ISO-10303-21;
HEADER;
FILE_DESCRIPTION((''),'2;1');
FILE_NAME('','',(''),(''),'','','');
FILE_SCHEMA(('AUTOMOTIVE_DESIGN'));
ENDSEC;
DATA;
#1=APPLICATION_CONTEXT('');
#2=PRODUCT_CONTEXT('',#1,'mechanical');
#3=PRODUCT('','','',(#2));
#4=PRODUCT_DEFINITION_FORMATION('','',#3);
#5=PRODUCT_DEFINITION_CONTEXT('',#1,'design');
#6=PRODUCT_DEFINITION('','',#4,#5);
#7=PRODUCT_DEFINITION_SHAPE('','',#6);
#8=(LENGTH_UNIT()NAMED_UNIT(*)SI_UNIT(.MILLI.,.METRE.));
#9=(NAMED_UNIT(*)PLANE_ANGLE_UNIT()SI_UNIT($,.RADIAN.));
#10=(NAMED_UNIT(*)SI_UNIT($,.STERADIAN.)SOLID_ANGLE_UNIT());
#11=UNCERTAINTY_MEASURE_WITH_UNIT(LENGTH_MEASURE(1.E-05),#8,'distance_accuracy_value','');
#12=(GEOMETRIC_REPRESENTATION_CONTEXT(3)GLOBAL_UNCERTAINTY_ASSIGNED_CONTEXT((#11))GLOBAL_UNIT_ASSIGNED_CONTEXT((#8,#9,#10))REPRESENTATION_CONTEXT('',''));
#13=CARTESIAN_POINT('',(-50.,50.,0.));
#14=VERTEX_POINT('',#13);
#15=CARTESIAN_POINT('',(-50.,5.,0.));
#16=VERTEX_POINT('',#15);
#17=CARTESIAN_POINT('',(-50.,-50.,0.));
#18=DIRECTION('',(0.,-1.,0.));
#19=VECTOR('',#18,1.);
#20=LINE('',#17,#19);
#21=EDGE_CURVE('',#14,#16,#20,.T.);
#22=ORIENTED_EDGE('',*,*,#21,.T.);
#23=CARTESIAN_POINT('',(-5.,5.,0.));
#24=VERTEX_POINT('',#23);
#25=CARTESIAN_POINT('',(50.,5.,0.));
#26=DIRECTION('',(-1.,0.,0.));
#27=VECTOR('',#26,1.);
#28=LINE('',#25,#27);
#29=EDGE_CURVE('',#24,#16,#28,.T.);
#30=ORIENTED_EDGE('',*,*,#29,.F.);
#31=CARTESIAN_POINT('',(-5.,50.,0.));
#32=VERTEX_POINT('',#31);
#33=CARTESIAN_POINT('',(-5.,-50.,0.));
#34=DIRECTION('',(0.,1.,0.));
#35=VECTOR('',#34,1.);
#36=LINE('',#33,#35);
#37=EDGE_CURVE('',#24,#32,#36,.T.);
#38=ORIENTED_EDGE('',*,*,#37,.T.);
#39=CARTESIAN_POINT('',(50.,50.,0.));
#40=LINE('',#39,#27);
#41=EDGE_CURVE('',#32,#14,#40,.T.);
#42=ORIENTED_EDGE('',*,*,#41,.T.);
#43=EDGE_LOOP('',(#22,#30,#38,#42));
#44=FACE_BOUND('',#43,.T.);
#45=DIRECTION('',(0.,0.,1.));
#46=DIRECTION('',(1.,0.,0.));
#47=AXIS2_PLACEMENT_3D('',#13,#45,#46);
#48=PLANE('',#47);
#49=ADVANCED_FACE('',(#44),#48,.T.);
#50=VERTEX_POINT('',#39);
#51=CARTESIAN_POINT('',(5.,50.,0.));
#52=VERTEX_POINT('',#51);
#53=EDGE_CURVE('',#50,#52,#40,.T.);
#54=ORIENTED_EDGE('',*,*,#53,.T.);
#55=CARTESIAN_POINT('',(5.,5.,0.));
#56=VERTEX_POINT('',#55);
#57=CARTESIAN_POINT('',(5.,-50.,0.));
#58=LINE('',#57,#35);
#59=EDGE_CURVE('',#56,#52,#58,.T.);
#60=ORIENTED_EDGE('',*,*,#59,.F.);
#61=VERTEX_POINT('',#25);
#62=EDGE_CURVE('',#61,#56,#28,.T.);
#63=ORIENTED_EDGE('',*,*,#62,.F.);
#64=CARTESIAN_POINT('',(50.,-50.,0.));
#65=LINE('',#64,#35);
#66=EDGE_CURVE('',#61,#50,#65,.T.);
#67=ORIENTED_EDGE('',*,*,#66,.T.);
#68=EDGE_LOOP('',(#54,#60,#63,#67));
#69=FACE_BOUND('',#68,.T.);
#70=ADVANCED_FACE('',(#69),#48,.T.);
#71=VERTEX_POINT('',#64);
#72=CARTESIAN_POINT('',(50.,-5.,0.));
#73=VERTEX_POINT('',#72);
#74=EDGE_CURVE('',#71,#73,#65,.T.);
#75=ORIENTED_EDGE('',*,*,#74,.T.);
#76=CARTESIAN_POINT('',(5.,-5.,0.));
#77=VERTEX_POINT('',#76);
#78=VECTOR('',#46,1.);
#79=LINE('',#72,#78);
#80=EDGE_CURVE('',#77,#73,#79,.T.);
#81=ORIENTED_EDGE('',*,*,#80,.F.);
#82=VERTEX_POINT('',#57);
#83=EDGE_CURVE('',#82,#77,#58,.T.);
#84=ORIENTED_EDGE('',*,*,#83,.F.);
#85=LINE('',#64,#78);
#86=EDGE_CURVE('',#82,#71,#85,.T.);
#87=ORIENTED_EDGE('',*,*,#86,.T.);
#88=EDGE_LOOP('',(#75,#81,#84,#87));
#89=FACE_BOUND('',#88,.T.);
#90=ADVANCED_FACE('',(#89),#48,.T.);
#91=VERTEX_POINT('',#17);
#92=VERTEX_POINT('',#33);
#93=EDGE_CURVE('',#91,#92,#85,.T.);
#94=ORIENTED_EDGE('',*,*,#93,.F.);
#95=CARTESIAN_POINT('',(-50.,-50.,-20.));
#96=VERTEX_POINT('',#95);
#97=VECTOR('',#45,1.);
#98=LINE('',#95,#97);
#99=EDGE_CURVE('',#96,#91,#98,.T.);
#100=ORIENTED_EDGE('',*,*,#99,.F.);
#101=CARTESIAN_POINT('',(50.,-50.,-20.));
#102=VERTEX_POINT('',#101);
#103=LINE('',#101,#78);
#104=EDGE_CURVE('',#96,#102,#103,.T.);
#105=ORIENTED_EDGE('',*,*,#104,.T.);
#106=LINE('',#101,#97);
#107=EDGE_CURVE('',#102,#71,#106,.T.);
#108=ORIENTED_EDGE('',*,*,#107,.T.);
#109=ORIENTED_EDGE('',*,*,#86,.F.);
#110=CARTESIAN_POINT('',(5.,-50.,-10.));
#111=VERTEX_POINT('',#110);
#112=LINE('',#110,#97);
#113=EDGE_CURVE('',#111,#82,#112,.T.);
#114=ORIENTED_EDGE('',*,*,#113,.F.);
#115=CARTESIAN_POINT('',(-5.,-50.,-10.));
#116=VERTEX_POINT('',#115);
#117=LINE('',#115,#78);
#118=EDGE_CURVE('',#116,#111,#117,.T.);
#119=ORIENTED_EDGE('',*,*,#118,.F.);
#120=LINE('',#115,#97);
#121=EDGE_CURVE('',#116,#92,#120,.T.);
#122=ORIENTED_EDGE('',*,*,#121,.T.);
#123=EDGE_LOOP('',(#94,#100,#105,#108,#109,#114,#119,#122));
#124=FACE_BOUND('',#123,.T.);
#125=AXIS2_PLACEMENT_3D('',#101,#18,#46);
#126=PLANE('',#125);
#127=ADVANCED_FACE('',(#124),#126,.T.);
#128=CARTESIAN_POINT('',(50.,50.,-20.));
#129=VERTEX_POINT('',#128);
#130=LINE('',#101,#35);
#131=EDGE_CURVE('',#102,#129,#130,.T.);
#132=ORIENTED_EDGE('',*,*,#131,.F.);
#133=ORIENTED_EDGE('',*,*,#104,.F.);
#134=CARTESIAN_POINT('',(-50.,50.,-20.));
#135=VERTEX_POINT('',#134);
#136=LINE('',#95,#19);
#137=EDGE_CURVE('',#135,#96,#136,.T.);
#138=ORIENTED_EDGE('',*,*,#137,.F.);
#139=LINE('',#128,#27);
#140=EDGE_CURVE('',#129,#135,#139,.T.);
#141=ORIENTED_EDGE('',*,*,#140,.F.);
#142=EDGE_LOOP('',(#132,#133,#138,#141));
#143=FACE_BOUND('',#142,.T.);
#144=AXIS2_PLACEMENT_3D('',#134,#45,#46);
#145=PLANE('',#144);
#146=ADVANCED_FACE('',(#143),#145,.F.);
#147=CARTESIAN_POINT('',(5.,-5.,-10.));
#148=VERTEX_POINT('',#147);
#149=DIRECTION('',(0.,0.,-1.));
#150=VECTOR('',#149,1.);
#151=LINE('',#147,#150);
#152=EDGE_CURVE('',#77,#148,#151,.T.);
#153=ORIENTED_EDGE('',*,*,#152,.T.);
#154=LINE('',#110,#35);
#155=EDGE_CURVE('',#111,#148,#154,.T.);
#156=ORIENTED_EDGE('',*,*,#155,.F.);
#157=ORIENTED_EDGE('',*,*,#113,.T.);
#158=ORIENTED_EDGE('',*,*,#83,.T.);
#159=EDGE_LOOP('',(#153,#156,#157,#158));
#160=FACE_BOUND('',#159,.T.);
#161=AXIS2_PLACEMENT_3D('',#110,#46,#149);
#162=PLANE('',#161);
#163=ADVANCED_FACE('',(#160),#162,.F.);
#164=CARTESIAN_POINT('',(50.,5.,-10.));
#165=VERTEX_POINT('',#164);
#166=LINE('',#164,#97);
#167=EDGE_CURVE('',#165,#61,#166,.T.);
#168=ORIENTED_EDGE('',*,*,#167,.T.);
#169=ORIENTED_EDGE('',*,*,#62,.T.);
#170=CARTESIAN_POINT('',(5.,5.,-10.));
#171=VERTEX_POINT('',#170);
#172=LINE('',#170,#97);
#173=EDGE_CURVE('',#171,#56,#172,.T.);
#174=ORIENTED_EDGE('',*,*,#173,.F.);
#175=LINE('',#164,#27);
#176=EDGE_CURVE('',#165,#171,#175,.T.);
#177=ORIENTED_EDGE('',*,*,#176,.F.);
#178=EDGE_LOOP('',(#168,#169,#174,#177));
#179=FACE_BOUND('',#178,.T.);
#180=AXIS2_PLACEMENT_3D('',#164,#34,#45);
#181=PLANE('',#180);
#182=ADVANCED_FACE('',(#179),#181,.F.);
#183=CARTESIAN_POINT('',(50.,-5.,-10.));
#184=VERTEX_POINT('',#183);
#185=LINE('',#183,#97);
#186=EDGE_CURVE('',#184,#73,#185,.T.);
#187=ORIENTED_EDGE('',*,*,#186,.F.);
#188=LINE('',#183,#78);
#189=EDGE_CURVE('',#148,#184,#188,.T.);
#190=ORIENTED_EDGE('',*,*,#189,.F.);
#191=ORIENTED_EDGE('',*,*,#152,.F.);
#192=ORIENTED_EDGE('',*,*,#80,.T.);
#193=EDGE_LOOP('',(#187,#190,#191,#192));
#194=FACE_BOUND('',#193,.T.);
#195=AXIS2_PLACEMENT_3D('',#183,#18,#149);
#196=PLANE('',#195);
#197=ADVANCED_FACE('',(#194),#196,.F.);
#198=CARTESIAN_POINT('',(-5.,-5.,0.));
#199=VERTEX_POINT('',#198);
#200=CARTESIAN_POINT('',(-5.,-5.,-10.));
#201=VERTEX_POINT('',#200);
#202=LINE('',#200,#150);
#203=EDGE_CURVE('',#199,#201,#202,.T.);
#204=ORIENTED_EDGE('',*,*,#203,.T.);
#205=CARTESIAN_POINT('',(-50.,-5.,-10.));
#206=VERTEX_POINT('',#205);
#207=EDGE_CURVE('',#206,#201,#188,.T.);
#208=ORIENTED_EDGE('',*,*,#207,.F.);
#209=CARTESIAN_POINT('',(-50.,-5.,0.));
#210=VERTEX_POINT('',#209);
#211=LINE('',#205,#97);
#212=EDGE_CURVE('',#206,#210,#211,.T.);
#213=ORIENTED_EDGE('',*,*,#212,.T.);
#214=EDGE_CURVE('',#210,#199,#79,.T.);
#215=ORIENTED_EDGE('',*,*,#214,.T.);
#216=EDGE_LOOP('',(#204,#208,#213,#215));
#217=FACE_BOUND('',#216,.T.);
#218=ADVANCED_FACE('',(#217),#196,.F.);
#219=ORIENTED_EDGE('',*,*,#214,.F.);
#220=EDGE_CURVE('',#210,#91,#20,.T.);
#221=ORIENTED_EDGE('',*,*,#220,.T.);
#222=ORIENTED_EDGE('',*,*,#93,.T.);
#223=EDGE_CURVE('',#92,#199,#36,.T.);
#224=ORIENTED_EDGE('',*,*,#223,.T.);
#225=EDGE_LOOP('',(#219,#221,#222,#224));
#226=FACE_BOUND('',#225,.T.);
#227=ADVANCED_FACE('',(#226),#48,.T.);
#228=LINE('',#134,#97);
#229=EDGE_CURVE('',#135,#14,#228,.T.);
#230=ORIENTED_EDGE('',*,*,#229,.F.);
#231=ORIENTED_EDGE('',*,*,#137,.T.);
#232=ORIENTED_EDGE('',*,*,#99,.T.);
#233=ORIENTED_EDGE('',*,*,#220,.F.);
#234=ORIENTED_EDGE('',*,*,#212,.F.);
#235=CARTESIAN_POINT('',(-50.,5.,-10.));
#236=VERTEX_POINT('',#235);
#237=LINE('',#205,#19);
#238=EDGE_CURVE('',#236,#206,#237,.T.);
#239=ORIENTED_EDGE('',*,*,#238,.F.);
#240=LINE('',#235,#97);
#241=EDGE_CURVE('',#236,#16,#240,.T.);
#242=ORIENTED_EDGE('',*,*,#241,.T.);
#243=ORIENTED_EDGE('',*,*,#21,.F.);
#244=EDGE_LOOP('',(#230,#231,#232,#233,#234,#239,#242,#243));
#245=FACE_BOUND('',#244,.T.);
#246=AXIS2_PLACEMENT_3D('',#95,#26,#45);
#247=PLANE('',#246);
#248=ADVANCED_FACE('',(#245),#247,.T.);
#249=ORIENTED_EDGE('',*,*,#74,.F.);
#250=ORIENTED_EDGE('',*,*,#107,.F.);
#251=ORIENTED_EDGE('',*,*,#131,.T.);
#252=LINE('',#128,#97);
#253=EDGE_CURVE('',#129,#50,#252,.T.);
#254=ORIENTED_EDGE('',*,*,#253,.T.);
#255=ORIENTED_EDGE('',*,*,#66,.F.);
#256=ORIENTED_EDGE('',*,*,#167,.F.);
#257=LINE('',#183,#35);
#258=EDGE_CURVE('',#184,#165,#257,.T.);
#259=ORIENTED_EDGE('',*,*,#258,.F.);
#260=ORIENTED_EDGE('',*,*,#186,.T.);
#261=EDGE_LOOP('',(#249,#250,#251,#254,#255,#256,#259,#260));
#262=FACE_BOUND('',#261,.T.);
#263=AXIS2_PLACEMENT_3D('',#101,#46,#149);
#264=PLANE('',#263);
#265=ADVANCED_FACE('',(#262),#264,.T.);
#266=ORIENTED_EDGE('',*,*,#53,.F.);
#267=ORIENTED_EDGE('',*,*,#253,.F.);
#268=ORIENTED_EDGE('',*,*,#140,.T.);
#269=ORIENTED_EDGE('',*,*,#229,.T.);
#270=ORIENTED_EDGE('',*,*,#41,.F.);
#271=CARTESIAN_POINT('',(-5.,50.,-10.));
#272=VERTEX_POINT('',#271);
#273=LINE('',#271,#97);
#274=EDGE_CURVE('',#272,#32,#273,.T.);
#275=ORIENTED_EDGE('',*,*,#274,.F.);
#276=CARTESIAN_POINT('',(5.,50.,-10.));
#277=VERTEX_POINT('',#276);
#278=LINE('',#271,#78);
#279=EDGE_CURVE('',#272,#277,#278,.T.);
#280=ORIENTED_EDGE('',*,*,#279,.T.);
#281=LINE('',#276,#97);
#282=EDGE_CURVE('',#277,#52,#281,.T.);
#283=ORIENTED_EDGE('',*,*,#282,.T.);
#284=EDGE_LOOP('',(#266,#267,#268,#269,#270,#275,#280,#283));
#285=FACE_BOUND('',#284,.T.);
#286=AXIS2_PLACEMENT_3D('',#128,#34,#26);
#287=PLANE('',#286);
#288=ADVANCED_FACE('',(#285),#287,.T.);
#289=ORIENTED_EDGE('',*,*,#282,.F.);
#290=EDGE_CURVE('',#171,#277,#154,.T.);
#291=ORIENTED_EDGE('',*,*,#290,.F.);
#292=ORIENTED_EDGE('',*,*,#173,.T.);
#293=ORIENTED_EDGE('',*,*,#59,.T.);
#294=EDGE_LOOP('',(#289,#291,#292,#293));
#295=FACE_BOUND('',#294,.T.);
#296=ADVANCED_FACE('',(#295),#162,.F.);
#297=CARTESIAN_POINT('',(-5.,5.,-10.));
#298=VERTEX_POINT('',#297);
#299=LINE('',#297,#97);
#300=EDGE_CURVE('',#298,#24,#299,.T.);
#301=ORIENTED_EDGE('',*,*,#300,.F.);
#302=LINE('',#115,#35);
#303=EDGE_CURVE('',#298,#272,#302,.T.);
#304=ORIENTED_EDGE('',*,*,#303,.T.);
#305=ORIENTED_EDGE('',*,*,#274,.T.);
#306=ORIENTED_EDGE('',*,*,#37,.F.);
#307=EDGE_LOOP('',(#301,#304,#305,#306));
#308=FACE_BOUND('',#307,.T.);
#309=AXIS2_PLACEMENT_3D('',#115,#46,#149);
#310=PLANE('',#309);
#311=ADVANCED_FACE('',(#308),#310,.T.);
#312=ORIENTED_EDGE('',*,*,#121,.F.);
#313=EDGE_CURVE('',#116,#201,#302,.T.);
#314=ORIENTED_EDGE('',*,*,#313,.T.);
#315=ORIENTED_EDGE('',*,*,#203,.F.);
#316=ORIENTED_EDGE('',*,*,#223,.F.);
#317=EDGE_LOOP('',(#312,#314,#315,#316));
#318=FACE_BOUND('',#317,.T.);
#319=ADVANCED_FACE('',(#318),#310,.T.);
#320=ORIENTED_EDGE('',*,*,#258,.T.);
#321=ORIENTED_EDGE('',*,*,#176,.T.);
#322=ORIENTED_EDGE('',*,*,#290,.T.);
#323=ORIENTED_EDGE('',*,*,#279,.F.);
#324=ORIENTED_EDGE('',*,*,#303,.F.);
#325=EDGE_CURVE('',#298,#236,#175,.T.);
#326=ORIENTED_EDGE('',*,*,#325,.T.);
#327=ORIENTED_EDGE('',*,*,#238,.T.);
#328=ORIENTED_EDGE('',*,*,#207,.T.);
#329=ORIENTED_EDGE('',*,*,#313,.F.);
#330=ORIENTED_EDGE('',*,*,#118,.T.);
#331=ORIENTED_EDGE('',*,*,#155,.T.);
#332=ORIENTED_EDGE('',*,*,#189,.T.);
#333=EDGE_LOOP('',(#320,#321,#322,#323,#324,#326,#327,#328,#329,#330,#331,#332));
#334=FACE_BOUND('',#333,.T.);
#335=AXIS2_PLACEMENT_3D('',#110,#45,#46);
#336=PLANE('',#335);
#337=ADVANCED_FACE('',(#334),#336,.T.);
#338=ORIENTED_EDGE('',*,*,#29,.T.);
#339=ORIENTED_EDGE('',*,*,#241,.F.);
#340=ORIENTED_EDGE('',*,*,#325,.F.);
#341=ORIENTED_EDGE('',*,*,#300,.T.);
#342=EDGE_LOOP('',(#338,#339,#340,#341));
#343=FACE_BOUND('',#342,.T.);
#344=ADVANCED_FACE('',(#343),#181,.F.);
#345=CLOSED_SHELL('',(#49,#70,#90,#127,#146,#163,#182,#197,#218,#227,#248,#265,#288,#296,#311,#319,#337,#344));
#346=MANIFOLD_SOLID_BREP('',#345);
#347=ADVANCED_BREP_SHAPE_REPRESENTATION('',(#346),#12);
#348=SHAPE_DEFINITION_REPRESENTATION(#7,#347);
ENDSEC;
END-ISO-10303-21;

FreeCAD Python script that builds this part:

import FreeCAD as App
import Part
import Sketcher

V = App.Vector
Q = App.Units.Quantity


def add_polygon(sketch, points):
    """Adds a closed chain of lines whose ends are joined by coincident constraints."""
    first, n = sketch.GeometryCount, len(points)
    for a, b in zip(points, points[1:] + points[:1]):
        sketch.addGeometry(Part.LineSegment(App.Vector(*a, 0), App.Vector(*b, 0)), False)
    for i in range(n):
        sketch.addConstraint(Sketcher.Constraint("Coincident", first + i, 2, first + (i + 1) % n, 1))

doc = App.newDocument("Part")
body = doc.addObject("PartDesign::Body", "Body")

# Sketch on XY plane
sketch1 = body.newObject("Sketcher::SketchObject", "Sketch")
sketch1.AttachmentSupport = (doc.getObject("XY_Plane"), [""])
sketch1.MapMode = "FlatFace"
add_polygon(sketch1, [(-50, 50), (-50, -50), (50, -50), (50, 50)])  # lines 0-3
sketch1.addConstraint([
    Sketcher.Constraint("Vertical", 0),
    Sketcher.Constraint("Horizontal", 1),
    Sketcher.Constraint("Vertical", 2),
    Sketcher.Constraint("Horizontal", 3),
    Sketcher.Constraint("Symmetric", 0, 2, 2, 2, -1, 1),
    Sketcher.Constraint("Equal", 3, 0),
    Sketcher.Constraint("DistanceX", 1, 1, 1, 2, Q("100 mm")),
])
pad1 = body.newObject("PartDesign::Pad", "Pad")
pad1.Profile = sketch1
pad1.Length = 20
pad1.Reversed = True

# Sketch on XY plane
sketch2 = body.newObject("Sketcher::SketchObject", "Sketch001")
sketch2.AttachmentSupport = (doc.getObject("XY_Plane"), [""])
sketch2.MapMode = "FlatFace"
add_polygon(sketch2, [(-5, 50), (-5, -50), (5, -50), (5, 50)])  # lines 0-3
sketch2.addConstraint([
    Sketcher.Constraint("Vertical", 0),
    Sketcher.Constraint("Horizontal", 1),
    Sketcher.Constraint("Vertical", 2),
    Sketcher.Constraint("Horizontal", 3),
    Sketcher.Constraint("Symmetric", 0, 2, 2, 2, -1, 1),
    Sketcher.Constraint("DistanceX", 1, 1, 1, 2, Q("10 mm")),
    Sketcher.Constraint("DistanceY", 0, 2, 0, 1, Q("100 mm")),
])
pocket1 = body.newObject("PartDesign::Pocket", "Pocket")
pocket1.Profile = sketch2
pocket1.Length = 10

# Sketch on XY plane
sketch3 = body.newObject("Sketcher::SketchObject", "Sketch002")
sketch3.AttachmentSupport = (doc.getObject("XY_Plane"), [""])
sketch3.MapMode = "FlatFace"
add_polygon(sketch3, [(-50, 5), (-50, -5), (50, -5), (50, 5)])  # lines 0-3
sketch3.addConstraint([
    Sketcher.Constraint("Vertical", 0),
    Sketcher.Constraint("Horizontal", 1),
    Sketcher.Constraint("Vertical", 2),
    Sketcher.Constraint("Horizontal", 3),
    Sketcher.Constraint("Symmetric", 0, 2, 2, 2, -1, 1),
    Sketcher.Constraint("DistanceX", 1, 1, 1, 2, Q("100 mm")),
    Sketcher.Constraint("DistanceY", 0, 2, 0, 1, Q("10 mm")),
])
pocket2 = body.newObject("PartDesign::Pocket", "Pocket001")
pocket2.Profile = sketch3
pocket2.Length = 10

doc.recompute()
